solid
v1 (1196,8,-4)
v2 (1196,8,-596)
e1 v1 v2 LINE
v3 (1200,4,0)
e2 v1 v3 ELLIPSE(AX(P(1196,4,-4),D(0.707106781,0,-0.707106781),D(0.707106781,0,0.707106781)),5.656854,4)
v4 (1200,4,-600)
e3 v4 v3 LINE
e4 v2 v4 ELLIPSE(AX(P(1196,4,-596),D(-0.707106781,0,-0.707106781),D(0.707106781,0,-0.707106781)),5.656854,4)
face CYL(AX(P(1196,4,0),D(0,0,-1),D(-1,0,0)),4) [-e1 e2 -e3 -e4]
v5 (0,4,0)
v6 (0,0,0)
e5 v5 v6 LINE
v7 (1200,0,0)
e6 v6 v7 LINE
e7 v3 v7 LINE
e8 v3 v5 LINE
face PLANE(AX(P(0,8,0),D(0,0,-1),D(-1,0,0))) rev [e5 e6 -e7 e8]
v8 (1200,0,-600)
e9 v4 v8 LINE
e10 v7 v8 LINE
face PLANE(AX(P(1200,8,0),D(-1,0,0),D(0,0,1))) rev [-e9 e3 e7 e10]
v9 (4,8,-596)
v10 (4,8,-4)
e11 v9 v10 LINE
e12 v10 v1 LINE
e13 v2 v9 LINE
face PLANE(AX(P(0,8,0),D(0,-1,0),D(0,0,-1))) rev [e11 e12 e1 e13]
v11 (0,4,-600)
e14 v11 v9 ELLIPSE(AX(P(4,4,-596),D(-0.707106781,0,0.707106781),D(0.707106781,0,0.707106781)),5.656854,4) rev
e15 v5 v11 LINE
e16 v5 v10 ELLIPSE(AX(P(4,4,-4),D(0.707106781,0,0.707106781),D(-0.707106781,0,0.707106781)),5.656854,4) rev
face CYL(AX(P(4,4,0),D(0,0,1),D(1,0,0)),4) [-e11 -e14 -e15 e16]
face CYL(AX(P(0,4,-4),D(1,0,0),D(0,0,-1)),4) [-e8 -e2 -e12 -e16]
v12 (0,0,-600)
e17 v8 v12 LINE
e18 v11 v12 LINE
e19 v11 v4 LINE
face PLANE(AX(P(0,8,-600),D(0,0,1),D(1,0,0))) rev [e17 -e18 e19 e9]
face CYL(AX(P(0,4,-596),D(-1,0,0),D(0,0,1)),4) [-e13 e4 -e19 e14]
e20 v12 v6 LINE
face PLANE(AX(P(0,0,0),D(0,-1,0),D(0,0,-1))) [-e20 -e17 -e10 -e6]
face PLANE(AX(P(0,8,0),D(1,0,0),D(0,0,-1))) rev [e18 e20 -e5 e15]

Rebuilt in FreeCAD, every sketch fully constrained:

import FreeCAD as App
import Part
import Sketcher

V = App.Vector
Q = App.Units.Quantity


def edges_at(feature, points):
    """Names of the edges that pass closest to the given points."""
    edges = feature.Shape.Edges
    near = lambda p: min(range(len(edges)), key=lambda i: edges[i].distToShape(Part.Vertex(*p))[0])
    return sorted({f"Edge{near(p) + 1}" for p in points})

doc = App.newDocument("Part")
params = doc.addObject("Spreadsheet::Sheet", "Params")
for row, (alias, value) in enumerate([
    ("sketch1_width", "1200 mm"),
    ("sketch1_height", "600 mm"),
    ("pad1_length", "8 mm"),
    ("fillet_radius", "4 mm"),
], start=1):
    params.set(f"A{row}", alias)
    params.set(f"B{row}", "=" + value)
    params.setAlias(f"B{row}", alias)

body = doc.addObject("PartDesign::Body", "Body")

# Sketch on XZ plane
sketch1 = body.newObject("Sketcher::SketchObject", "Sketch")
sketch1.AttachmentSupport = (doc.getObject("XZ_Plane"), [""])
sketch1.MapMode = "FlatFace"
sketch1.addGeometry([
    Part.LineSegment(V(0, -600, 0), V(0, 0, 0)),
    Part.LineSegment(V(0, 0, 0), V(1200, 0, 0)),
    Part.LineSegment(V(1200, 0, 0), V(1200, -600, 0)),
    Part.LineSegment(V(1200, -600, 0), V(0, -600, 0)),
], False)
sketch1.addConstraint([
    Sketcher.Constraint("Coincident", 0, 2, 1, 1),
    Sketcher.Constraint("Coincident", 1, 2, 2, 1),
    Sketcher.Constraint("Coincident", 2, 2, 3, 1),
    Sketcher.Constraint("Coincident", 3, 2, 0, 1),
    Sketcher.Constraint("Vertical", 0),
    Sketcher.Constraint("Horizontal", 1),
    Sketcher.Constraint("Vertical", 2),
    Sketcher.Constraint("Horizontal", 3),
    Sketcher.Constraint("Coincident", 0, 2, -1, 1),
    Sketcher.Constraint("DistanceX", 1, 1, 1, 2, Q("1200 mm")),
    Sketcher.Constraint("DistanceY", 0, 1, 0, 2, Q("600 mm")),
])
sketch1.setExpression("Constraints[9]", "Params.sketch1_width")
sketch1.setExpression("Constraints[10]", "Params.sketch1_height")
pad1 = body.newObject("PartDesign::Pad", "Pad")
pad1.Profile = sketch1
pad1.setExpression("Length", "Params.pad1_length")
pad1.Reversed = True
doc.recompute()

fillet = body.newObject("PartDesign::Fillet", "Fillet")
fillet.Base = (pad1, edges_at(pad1, [
    (1200, 8, -300),
    (600, 8, -600),
    (0, 8, -300),
    (600, 8, 0),
]))
fillet.setExpression("Radius", "Params.fillet_radius")

doc.recompute()
